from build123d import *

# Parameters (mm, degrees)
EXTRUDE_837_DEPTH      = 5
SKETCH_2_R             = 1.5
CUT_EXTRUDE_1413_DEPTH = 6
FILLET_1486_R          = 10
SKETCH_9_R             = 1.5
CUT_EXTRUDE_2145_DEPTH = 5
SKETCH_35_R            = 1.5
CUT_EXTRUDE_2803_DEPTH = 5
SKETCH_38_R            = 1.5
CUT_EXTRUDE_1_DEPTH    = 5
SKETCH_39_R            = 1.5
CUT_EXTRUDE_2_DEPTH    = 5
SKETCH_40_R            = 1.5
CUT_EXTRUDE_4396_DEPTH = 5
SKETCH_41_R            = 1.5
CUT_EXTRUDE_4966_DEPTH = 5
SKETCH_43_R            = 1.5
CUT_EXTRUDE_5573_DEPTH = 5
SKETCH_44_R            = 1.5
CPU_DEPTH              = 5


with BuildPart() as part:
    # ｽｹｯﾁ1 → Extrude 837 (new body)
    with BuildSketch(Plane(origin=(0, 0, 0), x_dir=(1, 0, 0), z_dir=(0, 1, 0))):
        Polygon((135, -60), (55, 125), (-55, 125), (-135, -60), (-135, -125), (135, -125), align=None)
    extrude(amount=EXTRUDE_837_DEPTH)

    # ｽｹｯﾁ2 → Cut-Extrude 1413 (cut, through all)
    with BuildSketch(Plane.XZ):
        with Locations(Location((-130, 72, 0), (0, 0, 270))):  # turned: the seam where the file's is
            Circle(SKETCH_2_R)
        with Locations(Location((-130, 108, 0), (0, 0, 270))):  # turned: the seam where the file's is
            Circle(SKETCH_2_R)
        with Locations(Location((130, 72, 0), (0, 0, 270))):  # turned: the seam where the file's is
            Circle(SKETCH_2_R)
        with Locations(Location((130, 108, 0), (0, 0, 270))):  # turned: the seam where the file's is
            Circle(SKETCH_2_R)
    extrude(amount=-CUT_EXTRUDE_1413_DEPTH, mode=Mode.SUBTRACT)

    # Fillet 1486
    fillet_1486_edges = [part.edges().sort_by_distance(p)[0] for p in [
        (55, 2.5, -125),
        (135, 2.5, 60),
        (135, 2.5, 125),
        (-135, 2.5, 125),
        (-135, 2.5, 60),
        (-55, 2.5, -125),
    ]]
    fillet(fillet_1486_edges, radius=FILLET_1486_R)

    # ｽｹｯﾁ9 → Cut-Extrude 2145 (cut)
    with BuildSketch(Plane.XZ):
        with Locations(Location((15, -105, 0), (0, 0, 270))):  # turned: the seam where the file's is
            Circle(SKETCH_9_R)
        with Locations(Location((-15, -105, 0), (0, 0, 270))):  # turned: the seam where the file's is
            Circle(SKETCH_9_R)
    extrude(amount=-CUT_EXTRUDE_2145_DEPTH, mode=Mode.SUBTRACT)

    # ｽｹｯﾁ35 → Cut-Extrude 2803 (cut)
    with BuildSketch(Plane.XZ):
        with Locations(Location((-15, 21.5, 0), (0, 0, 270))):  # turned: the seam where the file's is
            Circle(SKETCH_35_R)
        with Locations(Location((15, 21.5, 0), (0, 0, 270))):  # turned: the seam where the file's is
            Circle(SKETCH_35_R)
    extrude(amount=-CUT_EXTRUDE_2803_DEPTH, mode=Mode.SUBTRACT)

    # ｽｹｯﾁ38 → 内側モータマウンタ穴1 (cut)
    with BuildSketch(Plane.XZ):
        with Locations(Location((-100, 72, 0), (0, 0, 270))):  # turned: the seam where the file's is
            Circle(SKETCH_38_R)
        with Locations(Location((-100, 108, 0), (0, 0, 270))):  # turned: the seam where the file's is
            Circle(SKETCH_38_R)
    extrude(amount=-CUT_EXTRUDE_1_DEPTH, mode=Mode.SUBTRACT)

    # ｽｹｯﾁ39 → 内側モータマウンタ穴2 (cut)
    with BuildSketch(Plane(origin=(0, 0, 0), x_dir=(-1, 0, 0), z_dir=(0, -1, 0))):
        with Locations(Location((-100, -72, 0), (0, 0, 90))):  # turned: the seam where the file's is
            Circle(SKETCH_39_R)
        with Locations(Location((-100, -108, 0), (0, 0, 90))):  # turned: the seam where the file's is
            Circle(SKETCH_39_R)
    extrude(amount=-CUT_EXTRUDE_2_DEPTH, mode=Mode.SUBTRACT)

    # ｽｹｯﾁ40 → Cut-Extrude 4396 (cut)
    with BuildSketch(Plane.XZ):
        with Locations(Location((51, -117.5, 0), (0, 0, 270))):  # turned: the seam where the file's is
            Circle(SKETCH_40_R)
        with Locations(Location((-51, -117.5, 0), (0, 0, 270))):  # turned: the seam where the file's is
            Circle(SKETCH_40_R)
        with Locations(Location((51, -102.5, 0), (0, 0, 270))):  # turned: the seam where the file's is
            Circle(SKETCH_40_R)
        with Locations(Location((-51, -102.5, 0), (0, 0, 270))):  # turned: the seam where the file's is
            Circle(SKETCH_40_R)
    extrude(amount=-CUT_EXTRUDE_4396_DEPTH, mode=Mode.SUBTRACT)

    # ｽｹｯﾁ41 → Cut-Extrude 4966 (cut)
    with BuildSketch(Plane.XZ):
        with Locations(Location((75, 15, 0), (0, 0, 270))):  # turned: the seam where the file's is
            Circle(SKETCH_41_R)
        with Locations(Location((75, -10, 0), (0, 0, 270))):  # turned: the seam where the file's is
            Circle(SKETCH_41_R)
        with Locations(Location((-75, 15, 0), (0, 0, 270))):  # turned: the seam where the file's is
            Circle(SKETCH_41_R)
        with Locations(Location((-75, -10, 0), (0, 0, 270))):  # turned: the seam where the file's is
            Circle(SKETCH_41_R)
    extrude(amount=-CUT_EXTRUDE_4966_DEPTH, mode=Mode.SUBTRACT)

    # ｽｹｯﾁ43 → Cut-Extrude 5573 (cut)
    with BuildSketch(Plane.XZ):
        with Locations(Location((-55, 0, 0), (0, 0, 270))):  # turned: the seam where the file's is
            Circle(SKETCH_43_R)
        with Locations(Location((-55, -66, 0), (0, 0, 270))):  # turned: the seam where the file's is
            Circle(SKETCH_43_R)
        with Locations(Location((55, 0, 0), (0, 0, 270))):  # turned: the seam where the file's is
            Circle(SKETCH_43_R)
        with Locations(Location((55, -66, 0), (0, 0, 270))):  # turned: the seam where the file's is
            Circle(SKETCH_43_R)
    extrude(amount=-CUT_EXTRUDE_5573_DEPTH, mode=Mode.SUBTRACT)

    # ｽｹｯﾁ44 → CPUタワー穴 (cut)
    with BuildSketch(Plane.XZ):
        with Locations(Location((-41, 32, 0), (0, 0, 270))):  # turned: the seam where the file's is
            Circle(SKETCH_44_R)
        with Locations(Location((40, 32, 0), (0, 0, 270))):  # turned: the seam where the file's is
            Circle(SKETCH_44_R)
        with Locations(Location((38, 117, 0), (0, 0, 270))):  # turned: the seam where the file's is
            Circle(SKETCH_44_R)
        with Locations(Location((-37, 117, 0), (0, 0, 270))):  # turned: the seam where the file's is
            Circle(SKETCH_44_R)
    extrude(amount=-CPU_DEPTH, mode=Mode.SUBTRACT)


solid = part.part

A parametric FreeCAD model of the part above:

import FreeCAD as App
import Part
import Sketcher
from FreeCAD import Vector
Q = App.Units.Quantity


def edges_at(feature, points):
    """Names of the edges that pass closest to the given points."""
    edges = feature.Shape.Edges
    near = lambda p: min(range(len(edges)), key=lambda i: edges[i].distToShape(Part.Vertex(*p))[0])
    return sorted({f"Edge{near(p) + 1}" for p in points})

doc = App.newDocument("Part")
body = doc.addObject("PartDesign::Body", "Body")

sketch1 = body.newObject("Sketcher::SketchObject", "Sketch")
sketch1.AttachmentSupport = (doc.getObject("XZ_Plane"), [""])
sketch1.MapMode = "FlatFace"
sketch1.addGeometry(Part.LineSegment(Vector(135, 60, 0), Vector(55, -125, 0)), False)
sketch1.addGeometry(Part.LineSegment(Vector(55, -125, 0), Vector(-55, -125, 0)), False)
sketch1.addGeometry(Part.LineSegment(Vector(-55, -125, 0), Vector(-135, 60, 0)), False)
sketch1.addGeometry(Part.LineSegment(Vector(-135, 60, 0), Vector(-135, 125, 0)), False)
sketch1.addGeometry(Part.LineSegment(Vector(-135, 125, 0), Vector(135, 125, 0)), False)
sketch1.addGeometry(Part.LineSegment(Vector(135, 125, 0), Vector(135, 60, 0)), False)
sketch1.addConstraint(Sketcher.Constraint("Coincident", 0, 2, 1, 1))
sketch1.addConstraint(Sketcher.Constraint("Coincident", 1, 2, 2, 1))
sketch1.addConstraint(Sketcher.Constraint("Coincident", 2, 2, 3, 1))
sketch1.addConstraint(Sketcher.Constraint("Coincident", 3, 2, 4, 1))
sketch1.addConstraint(Sketcher.Constraint("Coincident", 4, 2, 5, 1))
sketch1.addConstraint(Sketcher.Constraint("Coincident", 5, 2, 0, 1))
sketch1.addConstraint(Sketcher.Constraint("Horizontal", 1))
sketch1.addConstraint(Sketcher.Constraint("Vertical", 3))
sketch1.addConstraint(Sketcher.Constraint("Horizontal", 4))
sketch1.addConstraint(Sketcher.Constraint("Vertical", 5))
sketch1.addConstraint(Sketcher.Constraint("Symmetric", 2, 2, 5, 2, -2))
sketch1.addConstraint(Sketcher.Constraint("Equal", 0, 2))
sketch1.addConstraint(Sketcher.Constraint("DistanceX", 1, 2, 1, 1, Q("110 mm")))
sketch1.addConstraint(Sketcher.Constraint("DistanceX", 4, 1, 4, 2, Q("270 mm")))
sketch1.addConstraint(Sketcher.Constraint("DistanceY", 3, 1, 3, 2, Q("65 mm")))
sketch1.addConstraint(Sketcher.Constraint("DistanceY", 0, 2, -1, 1, Q("125 mm")))
sketch1.addConstraint(Sketcher.Constraint("DistanceY", -1, 1, 2, 2, Q("60 mm")))
pad1 = body.newObject("PartDesign::Pad", "Pad")
pad1.Profile = sketch1
pad1.Length = 5
pad1.Reversed = True

sketch2 = body.newObject("Sketcher::SketchObject", "Sketch001")
sketch2.AttachmentSupport = (doc.getObject("XZ_Plane"), [""])
sketch2.MapMode = "FlatFace"
sketch2.addGeometry(Part.Circle(Vector(-130, 72, 0), Vector(0, 0, 1), 1.5), False)
sketch2.addGeometry(Part.Circle(Vector(-130, 108, 0), Vector(0, 0, 1), 1.5), False)
sketch2.addGeometry(Part.Circle(Vector(130, 72, 0), Vector(0, 0, 1), 1.5), False)
sketch2.addGeometry(Part.Circle(Vector(130, 108, 0), Vector(0, 0, 1), 1.5), False)
sketch2.addConstraint(Sketcher.Constraint("Equal", 0, 1))
sketch2.addConstraint(Sketcher.Constraint("Equal", 1, 2))
sketch2.addConstraint(Sketcher.Constraint("Equal", 2, 3))
sketch2.addConstraint(Sketcher.Constraint("Symmetric", 0, 3, 2, 3, -2))
sketch2.addConstraint(Sketcher.Constraint("Symmetric", 1, 3, 3, 3, -2))
sketch2.addConstraint(Sketcher.Constraint("Vertical", 0, 3, 1, 3))
sketch2.addConstraint(Sketcher.Constraint("Diameter", 0, Q("3 mm")))
sketch2.addConstraint(Sketcher.Constraint("DistanceX", 0, 3, -1, 1, Q("130 mm")))
sketch2.addConstraint(Sketcher.Constraint("DistanceY", -1, 1, 0, 3, Q("72 mm")))
sketch2.addConstraint(Sketcher.Constraint("DistanceY", -1, 1, 1, 3, Q("108 mm")))
pocket1 = body.newObject("PartDesign::Pocket", "Pocket")
pocket1.Profile = sketch2
pocket1.Type = "ThroughAll"
doc.recompute()

fillet = body.newObject("PartDesign::Fillet", "Fillet")
fillet.Base = (pocket1, edges_at(pocket1, [
    (55, 2.5, -125),
    (135, 2.5, 60),
    (135, 2.5, 125),
    (-135, 2.5, 125),
    (-135, 2.5, 60),
    (-55, 2.5, -125),
]))
fillet.Radius = 10

sketch3 = body.newObject("Sketcher::SketchObject", "Sketch002")
sketch3.AttachmentSupport = (doc.getObject("XZ_Plane"), [""])
sketch3.MapMode = "FlatFace"
sketch3.addGeometry(Part.Circle(Vector(15, -105, 0), Vector(0, 0, 1), 1.5), False)
sketch3.addGeometry(Part.Circle(Vector(-15, -105, 0), Vector(0, 0, 1), 1.5), False)
sketch3.addConstraint(Sketcher.Constraint("Equal", 0, 1))
sketch3.addConstraint(Sketcher.Constraint("Symmetric", 0, 3, 1, 3, -2))
sketch3.addConstraint(Sketcher.Constraint("Diameter", 0, Q("3 mm")))
sketch3.addConstraint(Sketcher.Constraint("DistanceX", -1, 1, 0, 3, Q("15 mm")))
sketch3.addConstraint(Sketcher.Constraint("DistanceY", 0, 3, -1, 1, Q("105 mm")))
pocket2 = body.newObject("PartDesign::Pocket", "Pocket001")
pocket2.Profile = sketch3
pocket2.Length = 5

sketch4 = body.newObject("Sketcher::SketchObject", "Sketch003")
sketch4.AttachmentSupport = (doc.getObject("XZ_Plane"), [""])
sketch4.MapMode = "FlatFace"
sketch4.addGeometry(Part.Circle(Vector(-15, 21.5, 0), Vector(0, 0, 1), 1.5), False)
sketch4.addGeometry(Part.Circle(Vector(15, 21.5, 0), Vector(0, 0, 1), 1.5), False)
sketch4.addConstraint(Sketcher.Constraint("Equal", 0, 1))
sketch4.addConstraint(Sketcher.Constraint("Symmetric", 0, 3, 1, 3, -2))
sketch4.addConstraint(Sketcher.Constraint("Diameter", 0, Q("3 mm")))
sketch4.addConstraint(Sketcher.Constraint("DistanceX", 0, 3, -1, 1, Q("15 mm")))
sketch4.addConstraint(Sketcher.Constraint("DistanceY", -1, 1, 0, 3, Q("21.5 mm")))
pocket3 = body.newObject("PartDesign::Pocket", "Pocket002")
pocket3.Profile = sketch4
pocket3.Length = 5

sketch5 = body.newObject("Sketcher::SketchObject", "Sketch004")
sketch5.AttachmentSupport = (doc.getObject("XZ_Plane"), [""])
sketch5.MapMode = "FlatFace"
sketch5.addGeometry(Part.Circle(Vector(-100, 72, 0), Vector(0, 0, 1), 1.5), False)
sketch5.addGeometry(Part.Circle(Vector(-100, 108, 0), Vector(0, 0, 1), 1.5), False)
sketch5.addConstraint(Sketcher.Constraint("Equal", 0, 1))
sketch5.addConstraint(Sketcher.Constraint("Vertical", 0, 3, 1, 3))
sketch5.addConstraint(Sketcher.Constraint("Diameter", 0, Q("3 mm")))
sketch5.addConstraint(Sketcher.Constraint("DistanceX", 0, 3, -1, 1, Q("100 mm")))
sketch5.addConstraint(Sketcher.Constraint("DistanceY", -1, 1, 0, 3, Q("72 mm")))
sketch5.addConstraint(Sketcher.Constraint("DistanceY", -1, 1, 1, 3, Q("108 mm")))
pocket4 = body.newObject("PartDesign::Pocket", "Pocket003")
pocket4.Profile = sketch5
pocket4.Length = 5

sketch6 = body.newObject("Sketcher::SketchObject", "Sketch005")
sketch6.AttachmentSupport = (doc.getObject("XZ_Plane"), [""])
sketch6.MapMode = "FlatFace"
sketch6.addGeometry(Part.Circle(Vector(100, 72, 0), Vector(0, 0, 1), 1.5), False)
sketch6.addGeometry(Part.Circle(Vector(100, 108, 0), Vector(0, 0, 1), 1.5), False)
sketch6.addConstraint(Sketcher.Constraint("Equal", 0, 1))
sketch6.addConstraint(Sketcher.Constraint("Vertical", 0, 3, 1, 3))
sketch6.addConstraint(Sketcher.Constraint("Diameter", 0, Q("3 mm")))
sketch6.addConstraint(Sketcher.Constraint("DistanceX", -1, 1, 0, 3, Q("100 mm")))
sketch6.addConstraint(Sketcher.Constraint("DistanceY", -1, 1, 0, 3, Q("72 mm")))
sketch6.addConstraint(Sketcher.Constraint("DistanceY", -1, 1, 1, 3, Q("108 mm")))
pocket5 = body.newObject("PartDesign::Pocket", "Pocket004")
pocket5.Profile = sketch6
pocket5.Length = 5

sketch7 = body.newObject("Sketcher::SketchObject", "Sketch006")
sketch7.AttachmentSupport = (doc.getObject("XZ_Plane"), [""])
sketch7.MapMode = "FlatFace"
sketch7.addGeometry(Part.Circle(Vector(51, -117.5, 0), Vector(0, 0, 1), 1.5), False)
sketch7.addGeometry(Part.Circle(Vector(-51, -117.5, 0), Vector(0, 0, 1), 1.5), False)
sketch7.addGeometry(Part.Circle(Vector(51, -102.5, 0), Vector(0, 0, 1), 1.5), False)
sketch7.addGeometry(Part.Circle(Vector(-51, -102.5, 0), Vector(0, 0, 1), 1.5), False)
sketch7.addConstraint(Sketcher.Constraint("Equal", 0, 1))
sketch7.addConstraint(Sketcher.Constraint("Equal", 1, 2))
sketch7.addConstraint(Sketcher.Constraint("Equal", 2, 3))
sketch7.addConstraint(Sketcher.Constraint("Symmetric", 0, 3, 1, 3, -2))
sketch7.addConstraint(Sketcher.Constraint("Symmetric", 2, 3, 3, 3, -2))
sketch7.addConstraint(Sketcher.Constraint("Vertical", 0, 3, 2, 3))
sketch7.addConstraint(Sketcher.Constraint("Diameter", 0, Q("3 mm")))
sketch7.addConstraint(Sketcher.Constraint("DistanceX", -1, 1, 0, 3, Q("51 mm")))
sketch7.addConstraint(Sketcher.Constraint("DistanceY", 0, 3, 2, 3, Q("15 mm")))
sketch7.addConstraint(Sketcher.Constraint("DistanceY", 0, 3, -1, 1, Q("117.5 mm")))
pocket6 = body.newObject("PartDesign::Pocket", "Pocket005")
pocket6.Profile = sketch7
pocket6.Length = 5

sketch8 = body.newObject("Sketcher::SketchObject", "Sketch007")
sketch8.AttachmentSupport = (doc.getObject("XZ_Plane"), [""])
sketch8.MapMode = "FlatFace"
sketch8.addGeometry(Part.Circle(Vector(75, 15, 0), Vector(0, 0, 1), 1.5), False)
sketch8.addGeometry(Part.Circle(Vector(75, -10, 0), Vector(0, 0, 1), 1.5), False)
sketch8.addGeometry(Part.Circle(Vector(-75, 15, 0), Vector(0, 0, 1), 1.5), False)
sketch8.addGeometry(Part.Circle(Vector(-75, -10, 0), Vector(0, 0, 1), 1.5), False)
sketch8.addConstraint(Sketcher.Constraint("Equal", 0, 1))
sketch8.addConstraint(Sketcher.Constraint("Equal", 1, 2))
sketch8.addConstraint(Sketcher.Constraint("Equal", 2, 3))
sketch8.addConstraint(Sketcher.Constraint("Symmetric", 0, 3, 2, 3, -2))
sketch8.addConstraint(Sketcher.Constraint("Symmetric", 1, 3, 3, 3, -2))
sketch8.addConstraint(Sketcher.Constraint("Vertical", 0, 3, 1, 3))
sketch8.addConstraint(Sketcher.Constraint("Diameter", 0, Q("3 mm")))
sketch8.addConstraint(Sketcher.Constraint("DistanceX", -1, 1, 0, 3, Q("75 mm")))
sketch8.addConstraint(Sketcher.Constraint("DistanceY", -1, 1, 0, 3, Q("15 mm")))
sketch8.addConstraint(Sketcher.Constraint("DistanceY", 1, 3, -1, 1, Q("10 mm")))
pocket7 = body.newObject("PartDesign::Pocket", "Pocket006")
pocket7.Profile = sketch8
pocket7.Length = 5

sketch9 = body.newObject("Sketcher::SketchObject", "Sketch008")
sketch9.AttachmentSupport = (doc.getObject("XZ_Plane"), [""])
sketch9.MapMode = "FlatFace"
sketch9.addGeometry(Part.Circle(Vector(-55, 0, 0), Vector(0, 0, 1), 1.5), False)
sketch9.addGeometry(Part.Circle(Vector(-55, -66, 0), Vector(0, 0, 1), 1.5), False)
sketch9.addGeometry(Part.Circle(Vector(55, 0, 0), Vector(0, 0, 1), 1.5), False)
sketch9.addGeometry(Part.Circle(Vector(55, -66, 0), Vector(0, 0, 1), 1.5), False)
sketch9.addConstraint(Sketcher.Constraint("Equal", 0, 1))
sketch9.addConstraint(Sketcher.Constraint("Equal", 1, 2))
sketch9.addConstraint(Sketcher.Constraint("Equal", 2, 3))
sketch9.addConstraint(Sketcher.Constraint("Symmetric", 0, 3, 2, 3, -1, 1))
sketch9.addConstraint(Sketcher.Constraint("Symmetric", 1, 3, 3, 3, -2))
sketch9.addConstraint(Sketcher.Constraint("PointOnObject", 0, 3, -1))
sketch9.addConstraint(Sketcher.Constraint("Vertical", 0, 3, 1, 3))
sketch9.addConstraint(Sketcher.Constraint("Diameter", 0, Q("3 mm")))
sketch9.addConstraint(Sketcher.Constraint("DistanceX", 0, 3, -1, 1, Q("55 mm")))
sketch9.addConstraint(Sketcher.Constraint("DistanceY", 1, 3, -1, 1, Q("66 mm")))
pocket8 = body.newObject("PartDesign::Pocket", "Pocket007")
pocket8.Profile = sketch9
pocket8.Length = 5

sketch10 = body.newObject("Sketcher::SketchObject", "Sketch009")
sketch10.AttachmentSupport = (doc.getObject("XZ_Plane"), [""])
sketch10.MapMode = "FlatFace"
sketch10.addGeometry(Part.Circle(Vector(-41, 32, 0), Vector(0, 0, 1), 1.5), False)
sketch10.addGeometry(Part.Circle(Vector(40, 32, 0), Vector(0, 0, 1), 1.5), False)
sketch10.addGeometry(Part.Circle(Vector(38, 117, 0), Vector(0, 0, 1), 1.5), False)
sketch10.addGeometry(Part.Circle(Vector(-37, 117, 0), Vector(0, 0, 1), 1.5), False)
sketch10.addConstraint(Sketcher.Constraint("Equal", 0, 1))
sketch10.addConstraint(Sketcher.Constraint("Equal", 1, 2))
sketch10.addConstraint(Sketcher.Constraint("Equal", 2, 3))
sketch10.addConstraint(Sketcher.Constraint("Horizontal", 0, 3, 1, 3))
sketch10.addConstraint(Sketcher.Constraint("Horizontal", 2, 3, 3, 3))
sketch10.addConstraint(Sketcher.Constraint("Diameter", 0, Q("3 mm")))
sketch10.addConstraint(Sketcher.Constraint("DistanceX", 0, 3, -1, 1, Q("41 mm")))
sketch10.addConstraint(Sketcher.Constraint("DistanceY", -1, 1, 0, 3, Q("32 mm")))
sketch10.addConstraint(Sketcher.Constraint("DistanceX", -1, 1, 1, 3, Q("40 mm")))
sketch10.addConstraint(Sketcher.Constraint("DistanceX", -1, 1, 2, 3, Q("38 mm")))
sketch10.addConstraint(Sketcher.Constraint("DistanceY", -1, 1, 2, 3, Q("117 mm")))
sketch10.addConstraint(Sketcher.Constraint("DistanceX", 3, 3, -1, 1, Q("37 mm")))
pocket9 = body.newObject("PartDesign::Pocket", "Pocket008")
pocket9.Profile = sketch10
pocket9.Length = 5

doc.recompute()
